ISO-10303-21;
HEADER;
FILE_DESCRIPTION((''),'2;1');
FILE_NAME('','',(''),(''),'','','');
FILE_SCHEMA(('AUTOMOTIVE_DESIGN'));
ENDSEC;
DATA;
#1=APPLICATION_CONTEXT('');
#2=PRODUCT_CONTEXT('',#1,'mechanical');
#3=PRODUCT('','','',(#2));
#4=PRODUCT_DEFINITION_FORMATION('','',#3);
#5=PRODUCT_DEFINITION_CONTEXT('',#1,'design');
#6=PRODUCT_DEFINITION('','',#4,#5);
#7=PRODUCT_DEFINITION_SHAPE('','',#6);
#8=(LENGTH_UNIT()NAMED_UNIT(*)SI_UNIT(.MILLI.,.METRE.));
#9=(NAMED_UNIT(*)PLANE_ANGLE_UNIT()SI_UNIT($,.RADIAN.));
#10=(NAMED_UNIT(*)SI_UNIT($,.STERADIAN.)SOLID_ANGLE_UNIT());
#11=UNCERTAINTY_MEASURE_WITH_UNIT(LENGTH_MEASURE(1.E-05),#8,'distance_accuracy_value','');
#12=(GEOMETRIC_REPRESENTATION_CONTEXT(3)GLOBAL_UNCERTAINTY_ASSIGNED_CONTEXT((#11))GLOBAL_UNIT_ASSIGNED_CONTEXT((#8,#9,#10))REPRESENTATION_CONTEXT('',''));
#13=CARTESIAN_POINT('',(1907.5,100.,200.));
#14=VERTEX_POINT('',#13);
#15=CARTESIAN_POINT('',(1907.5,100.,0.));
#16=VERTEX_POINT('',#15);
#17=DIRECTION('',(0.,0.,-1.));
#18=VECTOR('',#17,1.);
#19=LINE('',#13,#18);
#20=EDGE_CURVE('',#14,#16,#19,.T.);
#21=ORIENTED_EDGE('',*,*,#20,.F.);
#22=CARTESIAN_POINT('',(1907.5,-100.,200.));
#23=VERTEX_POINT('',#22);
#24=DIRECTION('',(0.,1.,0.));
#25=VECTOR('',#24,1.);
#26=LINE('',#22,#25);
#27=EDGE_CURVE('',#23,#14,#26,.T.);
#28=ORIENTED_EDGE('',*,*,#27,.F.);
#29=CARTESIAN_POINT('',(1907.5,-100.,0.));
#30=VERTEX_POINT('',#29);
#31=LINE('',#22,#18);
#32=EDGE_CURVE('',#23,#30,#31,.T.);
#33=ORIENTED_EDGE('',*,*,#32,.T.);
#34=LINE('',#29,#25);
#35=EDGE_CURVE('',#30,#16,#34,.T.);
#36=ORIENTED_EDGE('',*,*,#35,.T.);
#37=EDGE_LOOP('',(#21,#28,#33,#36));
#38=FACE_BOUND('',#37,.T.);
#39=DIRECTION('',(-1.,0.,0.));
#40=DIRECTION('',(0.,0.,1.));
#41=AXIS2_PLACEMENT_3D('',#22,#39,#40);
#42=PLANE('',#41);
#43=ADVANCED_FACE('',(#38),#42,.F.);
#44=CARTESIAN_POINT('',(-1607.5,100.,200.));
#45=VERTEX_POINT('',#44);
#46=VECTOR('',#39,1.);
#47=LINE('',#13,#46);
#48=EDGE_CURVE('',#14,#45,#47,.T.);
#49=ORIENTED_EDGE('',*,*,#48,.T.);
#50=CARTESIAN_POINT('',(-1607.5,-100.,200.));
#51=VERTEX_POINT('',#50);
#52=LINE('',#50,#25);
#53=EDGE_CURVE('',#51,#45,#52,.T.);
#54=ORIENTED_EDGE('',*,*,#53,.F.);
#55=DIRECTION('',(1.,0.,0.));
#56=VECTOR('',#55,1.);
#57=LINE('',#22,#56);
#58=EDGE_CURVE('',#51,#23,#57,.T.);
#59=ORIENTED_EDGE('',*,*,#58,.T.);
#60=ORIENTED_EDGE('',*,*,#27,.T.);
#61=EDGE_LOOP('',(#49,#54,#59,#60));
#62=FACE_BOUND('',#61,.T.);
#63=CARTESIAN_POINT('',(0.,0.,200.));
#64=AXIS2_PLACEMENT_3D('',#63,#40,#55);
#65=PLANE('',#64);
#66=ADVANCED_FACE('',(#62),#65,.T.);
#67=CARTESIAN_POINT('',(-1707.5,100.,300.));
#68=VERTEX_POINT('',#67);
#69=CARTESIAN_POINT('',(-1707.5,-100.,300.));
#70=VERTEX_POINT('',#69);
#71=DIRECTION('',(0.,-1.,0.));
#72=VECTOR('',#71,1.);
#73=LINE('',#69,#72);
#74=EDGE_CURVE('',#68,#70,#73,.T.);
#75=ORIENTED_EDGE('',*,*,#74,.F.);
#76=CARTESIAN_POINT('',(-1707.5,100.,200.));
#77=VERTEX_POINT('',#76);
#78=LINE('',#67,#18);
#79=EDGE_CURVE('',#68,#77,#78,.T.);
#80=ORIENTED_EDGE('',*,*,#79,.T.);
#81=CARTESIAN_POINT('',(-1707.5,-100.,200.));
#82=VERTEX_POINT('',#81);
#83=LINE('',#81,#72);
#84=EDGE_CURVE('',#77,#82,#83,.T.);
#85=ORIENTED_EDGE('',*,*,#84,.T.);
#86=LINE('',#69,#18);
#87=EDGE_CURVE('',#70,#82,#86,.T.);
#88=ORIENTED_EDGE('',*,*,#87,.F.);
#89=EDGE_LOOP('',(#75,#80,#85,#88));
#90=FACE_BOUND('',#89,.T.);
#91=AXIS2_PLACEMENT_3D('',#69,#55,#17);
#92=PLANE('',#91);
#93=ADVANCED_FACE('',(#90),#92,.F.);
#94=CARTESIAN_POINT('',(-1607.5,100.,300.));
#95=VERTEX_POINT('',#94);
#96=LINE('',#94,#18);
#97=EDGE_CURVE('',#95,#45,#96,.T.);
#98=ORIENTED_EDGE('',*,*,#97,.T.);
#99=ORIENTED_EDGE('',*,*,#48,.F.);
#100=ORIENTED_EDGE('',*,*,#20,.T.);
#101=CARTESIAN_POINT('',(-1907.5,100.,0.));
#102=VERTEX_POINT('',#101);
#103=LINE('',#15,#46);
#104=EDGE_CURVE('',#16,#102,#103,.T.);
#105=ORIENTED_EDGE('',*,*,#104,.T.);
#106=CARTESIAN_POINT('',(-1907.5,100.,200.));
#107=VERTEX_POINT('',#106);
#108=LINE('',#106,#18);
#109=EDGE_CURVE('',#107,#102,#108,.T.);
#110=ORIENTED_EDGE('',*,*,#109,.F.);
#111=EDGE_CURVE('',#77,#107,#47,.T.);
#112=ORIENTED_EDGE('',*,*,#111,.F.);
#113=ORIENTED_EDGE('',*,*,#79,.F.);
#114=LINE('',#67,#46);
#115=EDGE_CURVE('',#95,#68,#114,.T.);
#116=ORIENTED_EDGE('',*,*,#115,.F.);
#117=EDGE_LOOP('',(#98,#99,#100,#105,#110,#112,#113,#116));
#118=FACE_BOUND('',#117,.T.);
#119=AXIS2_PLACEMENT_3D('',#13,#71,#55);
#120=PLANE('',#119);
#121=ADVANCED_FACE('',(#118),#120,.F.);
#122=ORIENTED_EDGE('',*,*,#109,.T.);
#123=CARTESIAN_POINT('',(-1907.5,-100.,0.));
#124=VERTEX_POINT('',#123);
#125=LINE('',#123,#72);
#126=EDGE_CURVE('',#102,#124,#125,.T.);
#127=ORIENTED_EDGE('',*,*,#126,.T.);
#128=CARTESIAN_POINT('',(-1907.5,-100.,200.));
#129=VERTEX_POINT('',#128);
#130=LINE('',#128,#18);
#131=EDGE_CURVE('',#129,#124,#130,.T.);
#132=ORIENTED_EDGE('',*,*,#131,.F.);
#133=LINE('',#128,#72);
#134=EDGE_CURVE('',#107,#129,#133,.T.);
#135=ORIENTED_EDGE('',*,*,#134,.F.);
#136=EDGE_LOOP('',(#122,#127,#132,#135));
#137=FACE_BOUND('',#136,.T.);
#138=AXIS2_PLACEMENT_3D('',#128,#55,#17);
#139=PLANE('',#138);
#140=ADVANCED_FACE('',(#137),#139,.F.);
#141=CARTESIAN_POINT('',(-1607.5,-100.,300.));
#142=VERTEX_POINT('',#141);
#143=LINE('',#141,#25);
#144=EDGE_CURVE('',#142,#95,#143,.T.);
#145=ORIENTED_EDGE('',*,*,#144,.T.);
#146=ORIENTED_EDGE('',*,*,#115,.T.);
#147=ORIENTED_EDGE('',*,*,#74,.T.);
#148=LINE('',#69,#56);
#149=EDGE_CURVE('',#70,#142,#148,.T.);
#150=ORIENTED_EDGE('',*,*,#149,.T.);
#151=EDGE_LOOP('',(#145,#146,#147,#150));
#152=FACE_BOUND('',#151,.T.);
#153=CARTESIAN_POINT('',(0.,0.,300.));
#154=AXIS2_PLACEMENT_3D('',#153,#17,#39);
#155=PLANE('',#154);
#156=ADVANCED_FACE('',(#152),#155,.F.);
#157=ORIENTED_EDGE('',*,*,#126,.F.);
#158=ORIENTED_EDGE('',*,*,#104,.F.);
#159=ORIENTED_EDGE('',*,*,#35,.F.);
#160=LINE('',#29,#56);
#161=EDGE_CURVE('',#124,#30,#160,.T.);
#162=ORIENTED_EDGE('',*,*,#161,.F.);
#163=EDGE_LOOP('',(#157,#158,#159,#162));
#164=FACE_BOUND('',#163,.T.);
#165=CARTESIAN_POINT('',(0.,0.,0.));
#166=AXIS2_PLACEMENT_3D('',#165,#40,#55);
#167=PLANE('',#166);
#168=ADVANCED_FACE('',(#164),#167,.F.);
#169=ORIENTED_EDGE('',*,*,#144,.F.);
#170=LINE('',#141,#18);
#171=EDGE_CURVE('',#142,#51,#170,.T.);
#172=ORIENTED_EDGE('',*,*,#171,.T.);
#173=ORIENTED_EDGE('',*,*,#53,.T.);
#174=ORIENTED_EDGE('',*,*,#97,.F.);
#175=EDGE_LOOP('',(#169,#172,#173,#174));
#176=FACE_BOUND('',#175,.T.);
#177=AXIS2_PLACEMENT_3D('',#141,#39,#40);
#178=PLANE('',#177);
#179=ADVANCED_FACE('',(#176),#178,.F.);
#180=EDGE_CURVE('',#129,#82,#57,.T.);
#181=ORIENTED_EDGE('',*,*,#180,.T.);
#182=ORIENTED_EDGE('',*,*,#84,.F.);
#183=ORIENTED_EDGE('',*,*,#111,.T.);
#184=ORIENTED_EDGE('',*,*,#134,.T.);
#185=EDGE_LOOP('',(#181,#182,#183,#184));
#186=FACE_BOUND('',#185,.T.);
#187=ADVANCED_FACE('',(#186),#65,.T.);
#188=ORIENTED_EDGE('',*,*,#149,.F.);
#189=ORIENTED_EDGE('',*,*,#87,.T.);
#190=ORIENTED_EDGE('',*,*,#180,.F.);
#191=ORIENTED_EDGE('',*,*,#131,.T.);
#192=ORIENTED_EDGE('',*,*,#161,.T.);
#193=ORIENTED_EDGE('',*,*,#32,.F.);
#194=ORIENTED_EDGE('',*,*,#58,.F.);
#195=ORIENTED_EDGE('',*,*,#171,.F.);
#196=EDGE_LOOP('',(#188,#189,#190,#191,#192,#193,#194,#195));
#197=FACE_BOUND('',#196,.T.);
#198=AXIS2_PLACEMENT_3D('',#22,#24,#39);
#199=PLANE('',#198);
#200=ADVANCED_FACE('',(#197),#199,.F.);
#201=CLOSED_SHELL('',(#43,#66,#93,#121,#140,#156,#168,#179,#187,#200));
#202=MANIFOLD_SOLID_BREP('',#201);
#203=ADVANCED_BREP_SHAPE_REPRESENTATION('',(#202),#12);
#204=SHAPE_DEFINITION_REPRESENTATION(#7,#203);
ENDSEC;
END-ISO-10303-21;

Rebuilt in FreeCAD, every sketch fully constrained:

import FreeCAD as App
import Part
import Sketcher

V = App.Vector


def add_polygon(sketch, points):
    """Adds a closed chain of lines whose ends are joined by coincident constraints."""
    first, n = sketch.GeometryCount, len(points)
    for a, b in zip(points, points[1:] + points[:1]):
        sketch.addGeometry(Part.LineSegment(App.Vector(*a, 0), App.Vector(*b, 0)), False)
    for i in range(n):
        sketch.addConstraint(Sketcher.Constraint("Coincident", first + i, 2, first + (i + 1) % n, 1))

doc = App.newDocument("Part")
body = doc.addObject("PartDesign::Body", "Body")

# Sketch on XY plane
sketch1 = doc.addObject("Sketcher::SketchObject", "Sketch")
body.addObject(sketch1)
sketch1.AttachmentSupport = (doc.XY_Plane, [""])
sketch1.MapMode = "FlatFace"
add_polygon(sketch1, [(-1908, 100), (-1908, -100), (1908, -100), (1908, 100)])  # lines 0-3
sketch1.addConstraint(Sketcher.Constraint("Vertical", 0))
sketch1.addConstraint(Sketcher.Constraint("Horizontal", 1))
sketch1.addConstraint(Sketcher.Constraint("Vertical", 2))
sketch1.addConstraint(Sketcher.Constraint("Horizontal", 3))
sketch1.addConstraint(Sketcher.Constraint("Symmetric", 0, 2, 2, 2, -1, 1))
sketch1.addConstraint(Sketcher.Constraint("DistanceX", 1, 1, 1, 2, 3815.0))
sketch1.addConstraint(Sketcher.Constraint("DistanceY", 0, 2, 0, 1, 200.0))
pad1 = doc.addObject("PartDesign::Pad", "Pad")
body.addObject(pad1)
pad1.Profile = sketch1
pad1.Length = 200

# Sketch on XY plane
sketch2 = doc.addObject("Sketcher::SketchObject", "Sketch001")
body.addObject(sketch2)
sketch2.AttachmentSupport = (doc.XY_Plane, [""])
sketch2.MapMode = "FlatFace"
sketch2.AttachmentOffset = App.Placement(V(0, 0, 200), App.Rotation())
add_polygon(sketch2, [(-1708, 100), (-1708, -100), (-1608, -100), (-1608, 100)])  # lines 0-3
sketch2.addConstraint(Sketcher.Constraint("Vertical", 0))
sketch2.addConstraint(Sketcher.Constraint("Horizontal", 1))
sketch2.addConstraint(Sketcher.Constraint("Vertical", 2))
sketch2.addConstraint(Sketcher.Constraint("Horizontal", 3))
sketch2.addConstraint(Sketcher.Constraint("DistanceX", 1, 1, 1, 2, 100.0))
sketch2.addConstraint(Sketcher.Constraint("DistanceY", 0, 2, 0, 1, 200.0))
sketch2.addConstraint(Sketcher.Constraint("DistanceY", 0, 2, -1, 1, 100.0))
sketch2.addConstraint(Sketcher.Constraint("DistanceX", 0, 2, -1, 1, 1707.5))
pad2 = doc.addObject("PartDesign::Pad", "Pad001")
body.addObject(pad2)
pad2.Profile = sketch2
pad2.Length = 100

doc.recompute()
